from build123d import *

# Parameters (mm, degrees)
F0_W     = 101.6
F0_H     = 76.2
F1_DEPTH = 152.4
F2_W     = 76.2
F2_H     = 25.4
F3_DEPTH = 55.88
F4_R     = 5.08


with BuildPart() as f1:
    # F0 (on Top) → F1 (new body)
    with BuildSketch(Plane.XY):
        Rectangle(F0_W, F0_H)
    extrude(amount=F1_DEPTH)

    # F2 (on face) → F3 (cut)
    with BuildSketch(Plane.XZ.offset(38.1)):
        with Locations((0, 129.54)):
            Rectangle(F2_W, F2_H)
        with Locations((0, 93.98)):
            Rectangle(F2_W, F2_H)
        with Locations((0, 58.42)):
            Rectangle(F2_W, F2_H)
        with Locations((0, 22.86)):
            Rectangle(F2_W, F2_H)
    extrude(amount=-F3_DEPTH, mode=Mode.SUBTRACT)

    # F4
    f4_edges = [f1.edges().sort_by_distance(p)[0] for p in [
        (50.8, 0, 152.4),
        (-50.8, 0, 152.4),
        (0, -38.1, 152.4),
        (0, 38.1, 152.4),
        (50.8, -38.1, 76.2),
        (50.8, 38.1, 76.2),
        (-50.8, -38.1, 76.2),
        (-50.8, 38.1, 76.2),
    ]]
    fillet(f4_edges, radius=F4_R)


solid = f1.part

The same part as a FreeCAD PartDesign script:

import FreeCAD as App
import Part
import Sketcher

V = App.Vector
Q = App.Units.Quantity


def edges_at(feature, points):
    """Names of the edges that pass closest to the given points."""
    edges = feature.Shape.Edges
    near = lambda p: min(range(len(edges)), key=lambda i: edges[i].distToShape(Part.Vertex(*p))[0])
    return sorted({f"Edge{near(p) + 1}" for p in points})

doc = App.newDocument("Part")
body = doc.addObject("PartDesign::Body", "Body")

# Sketch on XY plane
sketch1 = body.newObject("Sketcher::SketchObject", "Sketch")
sketch1.AttachmentSupport = (doc.getObject("XY_Plane"), [""])
sketch1.MapMode = "FlatFace"
sketch1.addGeometry(Part.LineSegment(V(-51, 38, 0), V(-51, -38, 0)), False)
sketch1.addGeometry(Part.LineSegment(V(-51, -38, 0), V(51, -38, 0)), False)
sketch1.addGeometry(Part.LineSegment(V(51, -38, 0), V(51, 38, 0)), False)
sketch1.addGeometry(Part.LineSegment(V(51, 38, 0), V(-51, 38, 0)), False)
sketch1.addConstraint(Sketcher.Constraint("Coincident", 0, 2, 1, 1))
sketch1.addConstraint(Sketcher.Constraint("Coincident", 1, 2, 2, 1))
sketch1.addConstraint(Sketcher.Constraint("Coincident", 2, 2, 3, 1))
sketch1.addConstraint(Sketcher.Constraint("Coincident", 3, 2, 0, 1))
sketch1.addConstraint(Sketcher.Constraint("Vertical", 0))
sketch1.addConstraint(Sketcher.Constraint("Horizontal", 1))
sketch1.addConstraint(Sketcher.Constraint("Vertical", 2))
sketch1.addConstraint(Sketcher.Constraint("Horizontal", 3))
sketch1.addConstraint(Sketcher.Constraint("Symmetric", 0, 2, 2, 2, -1, 1))
sketch1.addConstraint(Sketcher.Constraint("DistanceX", 1, 1, 1, 2, Q("4 in")))
sketch1.addConstraint(Sketcher.Constraint("DistanceY", 0, 2, 0, 1, Q("3 in")))
pad1 = body.newObject("PartDesign::Pad", "Pad")
pad1.Profile = sketch1
pad1.Length = Q("6 in")

# Sketch on XZ plane
sketch2 = body.newObject("Sketcher::SketchObject", "Sketch001")
sketch2.AttachmentSupport = (doc.getObject("XZ_Plane"), [""])
sketch2.MapMode = "FlatFace"
sketch2.AttachmentOffset = App.Placement(V(0, 0, 1.5 * 25.4), App.Rotation())
sketch2.addGeometry(Part.LineSegment(V(-38, 142, 0), V(-38, 117, 0)), False)
sketch2.addGeometry(Part.LineSegment(V(-38, 117, 0), V(38, 117, 0)), False)
sketch2.addGeometry(Part.LineSegment(V(38, 117, 0), V(38, 142, 0)), False)
sketch2.addGeometry(Part.LineSegment(V(38, 142, 0), V(-38, 142, 0)), False)
sketch2.addGeometry(Part.LineSegment(V(-38, 107, 0), V(-38, 81, 0)), False)
sketch2.addGeometry(Part.LineSegment(V(-38, 81, 0), V(38, 81, 0)), False)
sketch2.addGeometry(Part.LineSegment(V(38, 81, 0), V(38, 107, 0)), False)
sketch2.addGeometry(Part.LineSegment(V(38, 107, 0), V(-38, 107, 0)), False)
sketch2.addGeometry(Part.LineSegment(V(-38, 71, 0), V(-38, 46, 0)), False)
sketch2.addGeometry(Part.LineSegment(V(-38, 46, 0), V(38, 46, 0)), False)
sketch2.addGeometry(Part.LineSegment(V(38, 46, 0), V(38, 71, 0)), False)
sketch2.addGeometry(Part.LineSegment(V(38, 71, 0), V(-38, 71, 0)), False)
sketch2.addGeometry(Part.LineSegment(V(-38, 36, 0), V(-38, 10, 0)), False)
sketch2.addGeometry(Part.LineSegment(V(-38, 10, 0), V(38, 10, 0)), False)
sketch2.addGeometry(Part.LineSegment(V(38, 10, 0), V(38, 36, 0)), False)
sketch2.addGeometry(Part.LineSegment(V(38, 36, 0), V(-38, 36, 0)), False)
sketch2.addConstraint(Sketcher.Constraint("Coincident", 0, 2, 1, 1))
sketch2.addConstraint(Sketcher.Constraint("Coincident", 1, 2, 2, 1))
sketch2.addConstraint(Sketcher.Constraint("Coincident", 2, 2, 3, 1))
sketch2.addConstraint(Sketcher.Constraint("Coincident", 3, 2, 0, 1))
sketch2.addConstraint(Sketcher.Constraint("Coincident", 4, 2, 5, 1))
sketch2.addConstraint(Sketcher.Constraint("Coincident", 5, 2, 6, 1))
sketch2.addConstraint(Sketcher.Constraint("Coincident", 6, 2, 7, 1))
sketch2.addConstraint(Sketcher.Constraint("Coincident", 7, 2, 4, 1))
sketch2.addConstraint(Sketcher.Constraint("Coincident", 8, 2, 9, 1))
sketch2.addConstraint(Sketcher.Constraint("Coincident", 9, 2, 10, 1))
sketch2.addConstraint(Sketcher.Constraint("Coincident", 10, 2, 11, 1))
sketch2.addConstraint(Sketcher.Constraint("Coincident", 11, 2, 8, 1))
sketch2.addConstraint(Sketcher.Constraint("Coincident", 12, 2, 13, 1))
sketch2.addConstraint(Sketcher.Constraint("Coincident", 13, 2, 14, 1))
sketch2.addConstraint(Sketcher.Constraint("Coincident", 14, 2, 15, 1))
sketch2.addConstraint(Sketcher.Constraint("Coincident", 15, 2, 12, 1))
sketch2.addConstraint(Sketcher.Constraint("Vertical", 0))
sketch2.addConstraint(Sketcher.Constraint("Horizontal", 1))
sketch2.addConstraint(Sketcher.Constraint("Vertical", 2))
sketch2.addConstraint(Sketcher.Constraint("Horizontal", 3))
sketch2.addConstraint(Sketcher.Constraint("Vertical", 4))
sketch2.addConstraint(Sketcher.Constraint("Horizontal", 5))
sketch2.addConstraint(Sketcher.Constraint("Vertical", 6))
sketch2.addConstraint(Sketcher.Constraint("Horizontal", 7))
sketch2.addConstraint(Sketcher.Constraint("Vertical", 8))
sketch2.addConstraint(Sketcher.Constraint("Horizontal", 9))
sketch2.addConstraint(Sketcher.Constraint("Vertical", 10))
sketch2.addConstraint(Sketcher.Constraint("Horizontal", 11))
sketch2.addConstraint(Sketcher.Constraint("Vertical", 12))
sketch2.addConstraint(Sketcher.Constraint("Horizontal", 13))
sketch2.addConstraint(Sketcher.Constraint("Vertical", 14))
sketch2.addConstraint(Sketcher.Constraint("Horizontal", 15))
sketch2.addConstraint(Sketcher.Constraint("Vertical", 3, 2, 4, 2))
sketch2.addConstraint(Sketcher.Constraint("Vertical", 2, 2, 5, 2))
sketch2.addConstraint(Sketcher.Constraint("Vertical", 7, 2, 8, 2))
sketch2.addConstraint(Sketcher.Constraint("Vertical", 6, 2, 9, 2))
sketch2.addConstraint(Sketcher.Constraint("Vertical", 11, 2, 12, 2))
sketch2.addConstraint(Sketcher.Constraint("Vertical", 10, 2, 13, 2))
sketch2.addConstraint(Sketcher.Constraint("Equal", 2, 4))
sketch2.addConstraint(Sketcher.Constraint("Equal", 6, 8))
sketch2.addConstraint(Sketcher.Constraint("Equal", 10, 12))
sketch2.addConstraint(Sketcher.Constraint("DistanceX", 1, 1, 1, 2, Q("3 in")))
sketch2.addConstraint(Sketcher.Constraint("DistanceY", 0, 2, 0, 1, Q("1 in")))
sketch2.addConstraint(Sketcher.Constraint("DistanceX", 0, 2, -1, 1, Q("1.5 in")))
sketch2.addConstraint(Sketcher.Constraint("DistanceY", -1, 1, 0, 2, Q("4.6 in")))
sketch2.addConstraint(Sketcher.Constraint("DistanceY", -1, 1, 4, 2, Q("3.2 in")))
sketch2.addConstraint(Sketcher.Constraint("DistanceY", -1, 1, 8, 2, Q("1.8 in")))
sketch2.addConstraint(Sketcher.Constraint("DistanceY", -1, 1, 12, 2, Q("0.4 in")))
pocket1 = body.newObject("PartDesign::Pocket", "Pocket")
pocket1.Profile = sketch2
pocket1.Length = Q("2.2 in")
doc.recompute()

fillet = body.newObject("PartDesign::Fillet", "Fillet")
fillet.Base = (pocket1, edges_at(pocket1, [
    (50.8, 0, 152.4),
    (-50.8, 0, 152.4),
    (0, -38.1, 152.4),
    (0, 38.1, 152.4),
    (50.8, -38.1, 76.2),
    (50.8, 38.1, 76.2),
    (-50.8, -38.1, 76.2),
    (-50.8, 38.1, 76.2),
]))
fillet.Radius = Q("0.2 in")

doc.recompute()
